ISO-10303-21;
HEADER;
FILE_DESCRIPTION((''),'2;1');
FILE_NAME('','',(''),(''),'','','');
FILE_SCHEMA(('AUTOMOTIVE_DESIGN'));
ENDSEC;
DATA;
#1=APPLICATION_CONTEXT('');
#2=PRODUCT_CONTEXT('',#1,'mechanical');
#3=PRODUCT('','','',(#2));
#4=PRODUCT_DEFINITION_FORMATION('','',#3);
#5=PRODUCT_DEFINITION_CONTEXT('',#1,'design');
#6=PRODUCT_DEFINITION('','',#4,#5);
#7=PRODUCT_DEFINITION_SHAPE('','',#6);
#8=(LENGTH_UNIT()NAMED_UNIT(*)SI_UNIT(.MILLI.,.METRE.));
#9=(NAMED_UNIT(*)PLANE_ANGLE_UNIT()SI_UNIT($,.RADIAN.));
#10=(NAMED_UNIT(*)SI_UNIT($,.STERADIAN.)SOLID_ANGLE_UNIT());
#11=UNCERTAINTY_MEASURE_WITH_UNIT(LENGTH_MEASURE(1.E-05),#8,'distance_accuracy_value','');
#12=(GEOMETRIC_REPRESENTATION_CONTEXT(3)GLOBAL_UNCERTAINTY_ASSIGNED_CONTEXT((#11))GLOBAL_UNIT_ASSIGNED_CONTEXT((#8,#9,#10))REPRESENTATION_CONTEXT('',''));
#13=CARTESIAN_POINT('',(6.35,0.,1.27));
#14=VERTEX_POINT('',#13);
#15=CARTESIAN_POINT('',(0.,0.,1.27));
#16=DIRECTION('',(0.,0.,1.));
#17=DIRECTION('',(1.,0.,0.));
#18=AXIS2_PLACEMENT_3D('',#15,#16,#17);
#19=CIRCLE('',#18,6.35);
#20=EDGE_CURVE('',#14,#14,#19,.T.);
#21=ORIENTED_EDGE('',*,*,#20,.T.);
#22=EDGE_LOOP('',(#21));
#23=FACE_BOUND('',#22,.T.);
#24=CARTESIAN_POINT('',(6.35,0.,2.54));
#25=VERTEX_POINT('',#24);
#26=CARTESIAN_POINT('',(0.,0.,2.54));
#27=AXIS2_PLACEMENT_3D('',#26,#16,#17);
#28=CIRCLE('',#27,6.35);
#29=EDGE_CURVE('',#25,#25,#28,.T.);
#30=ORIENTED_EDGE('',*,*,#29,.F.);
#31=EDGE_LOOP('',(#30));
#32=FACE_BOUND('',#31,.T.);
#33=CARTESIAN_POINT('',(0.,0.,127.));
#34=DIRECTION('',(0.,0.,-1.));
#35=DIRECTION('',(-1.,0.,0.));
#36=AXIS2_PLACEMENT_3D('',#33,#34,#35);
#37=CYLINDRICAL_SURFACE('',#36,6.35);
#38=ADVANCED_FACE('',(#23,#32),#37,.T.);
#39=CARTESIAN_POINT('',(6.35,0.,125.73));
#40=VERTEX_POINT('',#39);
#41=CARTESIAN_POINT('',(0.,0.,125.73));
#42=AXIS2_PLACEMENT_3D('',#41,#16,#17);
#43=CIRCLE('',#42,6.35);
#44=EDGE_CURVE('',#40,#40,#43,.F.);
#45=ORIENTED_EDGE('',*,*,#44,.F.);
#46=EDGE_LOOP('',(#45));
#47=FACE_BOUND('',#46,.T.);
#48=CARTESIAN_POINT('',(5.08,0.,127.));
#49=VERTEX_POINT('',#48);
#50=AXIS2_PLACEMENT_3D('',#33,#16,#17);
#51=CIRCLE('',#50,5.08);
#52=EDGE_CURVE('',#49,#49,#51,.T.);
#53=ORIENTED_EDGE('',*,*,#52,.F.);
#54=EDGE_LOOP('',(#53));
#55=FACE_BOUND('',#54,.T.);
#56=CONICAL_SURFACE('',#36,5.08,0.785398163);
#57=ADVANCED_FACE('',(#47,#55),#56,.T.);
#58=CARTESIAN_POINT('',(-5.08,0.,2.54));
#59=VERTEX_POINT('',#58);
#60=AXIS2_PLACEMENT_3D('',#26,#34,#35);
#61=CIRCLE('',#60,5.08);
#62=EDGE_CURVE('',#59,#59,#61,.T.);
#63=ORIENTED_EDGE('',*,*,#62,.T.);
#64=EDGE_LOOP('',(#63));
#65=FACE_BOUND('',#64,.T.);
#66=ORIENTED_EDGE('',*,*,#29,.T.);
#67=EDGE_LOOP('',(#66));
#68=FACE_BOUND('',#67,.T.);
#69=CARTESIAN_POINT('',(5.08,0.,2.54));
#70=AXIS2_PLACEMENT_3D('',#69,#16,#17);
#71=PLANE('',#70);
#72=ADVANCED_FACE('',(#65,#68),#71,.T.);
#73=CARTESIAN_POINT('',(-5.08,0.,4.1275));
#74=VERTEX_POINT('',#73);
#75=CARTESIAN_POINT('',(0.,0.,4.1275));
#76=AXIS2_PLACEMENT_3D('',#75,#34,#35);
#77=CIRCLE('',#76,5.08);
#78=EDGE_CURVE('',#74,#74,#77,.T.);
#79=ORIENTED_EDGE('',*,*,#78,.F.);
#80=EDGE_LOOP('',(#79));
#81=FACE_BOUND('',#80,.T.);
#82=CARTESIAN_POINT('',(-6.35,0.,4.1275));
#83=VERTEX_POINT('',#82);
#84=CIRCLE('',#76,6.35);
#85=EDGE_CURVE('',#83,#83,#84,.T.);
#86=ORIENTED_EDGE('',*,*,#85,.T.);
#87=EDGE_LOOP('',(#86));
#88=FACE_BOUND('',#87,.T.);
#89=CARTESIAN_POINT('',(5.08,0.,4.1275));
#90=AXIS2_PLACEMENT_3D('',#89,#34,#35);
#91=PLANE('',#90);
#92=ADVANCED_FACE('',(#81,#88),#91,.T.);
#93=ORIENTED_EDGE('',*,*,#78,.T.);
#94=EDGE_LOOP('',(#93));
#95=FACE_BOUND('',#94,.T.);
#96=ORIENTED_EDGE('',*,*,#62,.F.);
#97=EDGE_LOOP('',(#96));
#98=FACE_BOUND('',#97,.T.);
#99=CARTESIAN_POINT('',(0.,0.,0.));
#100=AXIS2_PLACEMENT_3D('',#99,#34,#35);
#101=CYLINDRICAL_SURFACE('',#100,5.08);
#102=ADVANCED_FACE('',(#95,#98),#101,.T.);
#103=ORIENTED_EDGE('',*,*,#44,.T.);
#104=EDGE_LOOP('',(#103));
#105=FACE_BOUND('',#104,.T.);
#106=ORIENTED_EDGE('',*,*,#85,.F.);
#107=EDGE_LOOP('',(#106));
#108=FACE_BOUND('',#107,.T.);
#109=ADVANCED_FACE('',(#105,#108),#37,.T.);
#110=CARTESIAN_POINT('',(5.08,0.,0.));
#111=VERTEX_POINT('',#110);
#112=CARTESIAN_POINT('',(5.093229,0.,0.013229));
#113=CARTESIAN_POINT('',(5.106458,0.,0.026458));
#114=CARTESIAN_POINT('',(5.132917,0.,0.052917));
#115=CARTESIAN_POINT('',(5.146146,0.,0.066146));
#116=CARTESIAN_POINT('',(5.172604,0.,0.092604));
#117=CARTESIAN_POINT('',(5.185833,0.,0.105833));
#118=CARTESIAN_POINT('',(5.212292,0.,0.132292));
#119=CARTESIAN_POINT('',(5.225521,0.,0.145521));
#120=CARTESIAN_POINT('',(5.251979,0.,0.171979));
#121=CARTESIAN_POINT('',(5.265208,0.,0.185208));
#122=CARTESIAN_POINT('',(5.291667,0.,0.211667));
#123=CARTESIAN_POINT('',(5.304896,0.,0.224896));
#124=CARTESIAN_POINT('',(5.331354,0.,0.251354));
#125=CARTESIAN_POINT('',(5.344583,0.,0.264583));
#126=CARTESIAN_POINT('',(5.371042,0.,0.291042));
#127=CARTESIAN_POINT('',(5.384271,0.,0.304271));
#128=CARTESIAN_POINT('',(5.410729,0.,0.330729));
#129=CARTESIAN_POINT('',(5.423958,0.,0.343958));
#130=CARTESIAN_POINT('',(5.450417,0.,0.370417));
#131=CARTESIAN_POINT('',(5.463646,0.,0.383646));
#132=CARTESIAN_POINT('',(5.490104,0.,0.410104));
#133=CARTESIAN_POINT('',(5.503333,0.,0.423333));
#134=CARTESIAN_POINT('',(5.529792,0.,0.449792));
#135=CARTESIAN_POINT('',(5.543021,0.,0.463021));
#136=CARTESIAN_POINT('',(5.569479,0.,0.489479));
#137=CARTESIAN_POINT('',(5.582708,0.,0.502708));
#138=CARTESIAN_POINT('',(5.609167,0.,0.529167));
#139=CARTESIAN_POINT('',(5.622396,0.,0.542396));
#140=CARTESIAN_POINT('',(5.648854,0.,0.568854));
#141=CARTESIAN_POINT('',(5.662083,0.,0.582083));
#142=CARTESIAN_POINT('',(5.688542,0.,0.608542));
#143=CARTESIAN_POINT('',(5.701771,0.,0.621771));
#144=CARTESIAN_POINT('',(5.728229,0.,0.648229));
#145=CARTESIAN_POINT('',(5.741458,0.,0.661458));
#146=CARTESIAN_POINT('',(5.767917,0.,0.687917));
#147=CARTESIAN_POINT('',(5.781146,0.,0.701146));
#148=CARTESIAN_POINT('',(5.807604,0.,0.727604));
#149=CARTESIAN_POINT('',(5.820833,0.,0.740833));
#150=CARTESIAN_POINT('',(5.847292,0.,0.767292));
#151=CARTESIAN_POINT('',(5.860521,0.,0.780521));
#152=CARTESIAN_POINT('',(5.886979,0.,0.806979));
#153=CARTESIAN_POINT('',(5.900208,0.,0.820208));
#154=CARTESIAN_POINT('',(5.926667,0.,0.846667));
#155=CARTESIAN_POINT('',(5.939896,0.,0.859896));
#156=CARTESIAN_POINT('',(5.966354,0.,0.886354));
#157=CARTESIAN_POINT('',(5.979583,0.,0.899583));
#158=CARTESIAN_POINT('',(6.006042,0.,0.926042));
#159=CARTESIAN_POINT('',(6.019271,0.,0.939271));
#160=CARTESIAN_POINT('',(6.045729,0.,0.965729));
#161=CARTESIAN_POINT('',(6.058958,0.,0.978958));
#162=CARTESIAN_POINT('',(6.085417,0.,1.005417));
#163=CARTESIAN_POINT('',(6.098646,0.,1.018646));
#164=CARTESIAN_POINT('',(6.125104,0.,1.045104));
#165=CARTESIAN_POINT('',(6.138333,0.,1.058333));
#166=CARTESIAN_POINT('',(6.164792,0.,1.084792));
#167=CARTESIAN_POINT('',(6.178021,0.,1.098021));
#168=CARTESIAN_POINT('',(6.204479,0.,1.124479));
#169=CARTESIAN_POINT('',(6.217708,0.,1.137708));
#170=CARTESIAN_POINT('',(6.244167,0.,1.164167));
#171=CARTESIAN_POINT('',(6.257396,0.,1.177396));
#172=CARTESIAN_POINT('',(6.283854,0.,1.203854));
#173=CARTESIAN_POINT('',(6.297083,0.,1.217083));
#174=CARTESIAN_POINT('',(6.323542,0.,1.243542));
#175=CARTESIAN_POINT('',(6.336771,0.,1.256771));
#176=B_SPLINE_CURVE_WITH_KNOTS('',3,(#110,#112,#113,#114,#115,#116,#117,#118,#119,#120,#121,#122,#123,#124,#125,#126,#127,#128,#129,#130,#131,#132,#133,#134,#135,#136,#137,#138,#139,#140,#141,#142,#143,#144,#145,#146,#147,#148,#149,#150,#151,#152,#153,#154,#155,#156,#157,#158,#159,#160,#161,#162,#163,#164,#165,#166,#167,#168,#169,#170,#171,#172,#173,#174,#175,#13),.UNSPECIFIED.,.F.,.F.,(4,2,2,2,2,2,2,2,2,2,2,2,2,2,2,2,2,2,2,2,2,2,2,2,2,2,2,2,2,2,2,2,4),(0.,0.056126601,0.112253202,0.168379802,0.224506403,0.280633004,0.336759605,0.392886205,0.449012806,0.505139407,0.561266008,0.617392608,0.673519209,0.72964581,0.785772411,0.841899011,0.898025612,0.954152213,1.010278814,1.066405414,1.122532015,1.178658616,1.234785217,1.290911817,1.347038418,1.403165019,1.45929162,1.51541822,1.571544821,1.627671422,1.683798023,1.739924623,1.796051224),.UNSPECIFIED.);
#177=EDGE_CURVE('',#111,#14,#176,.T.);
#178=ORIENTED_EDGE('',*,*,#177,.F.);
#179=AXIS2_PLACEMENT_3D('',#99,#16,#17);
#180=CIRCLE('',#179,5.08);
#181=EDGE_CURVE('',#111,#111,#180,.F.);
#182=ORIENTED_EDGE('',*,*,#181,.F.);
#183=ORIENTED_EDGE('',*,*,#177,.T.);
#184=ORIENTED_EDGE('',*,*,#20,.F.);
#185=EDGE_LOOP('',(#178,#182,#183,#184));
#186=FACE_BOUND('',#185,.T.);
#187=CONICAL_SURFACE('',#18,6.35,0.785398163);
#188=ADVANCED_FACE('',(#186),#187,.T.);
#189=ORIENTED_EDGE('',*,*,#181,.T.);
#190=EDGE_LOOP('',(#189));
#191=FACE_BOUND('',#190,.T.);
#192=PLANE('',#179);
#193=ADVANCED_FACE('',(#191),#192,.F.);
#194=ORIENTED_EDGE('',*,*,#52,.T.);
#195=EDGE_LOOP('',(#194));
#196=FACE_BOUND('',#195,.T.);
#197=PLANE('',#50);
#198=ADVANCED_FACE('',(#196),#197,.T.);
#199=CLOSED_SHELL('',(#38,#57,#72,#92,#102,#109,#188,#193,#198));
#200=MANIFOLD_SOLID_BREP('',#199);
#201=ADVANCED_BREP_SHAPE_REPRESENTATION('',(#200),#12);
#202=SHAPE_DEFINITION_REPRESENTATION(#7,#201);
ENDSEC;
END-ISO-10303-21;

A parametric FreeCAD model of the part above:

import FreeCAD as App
import Part
import Sketcher
from FreeCAD import Vector
Q = App.Units.Quantity


def edges_at(feature, points):
    """Names of the edges that pass closest to the given points."""
    edges = feature.Shape.Edges
    near = lambda p: min(range(len(edges)), key=lambda i: edges[i].distToShape(Part.Vertex(*p))[0])
    return sorted({f"Edge{near(p) + 1}" for p in points})


def add_polygon(sketch, points):
    """Adds a closed chain of lines whose ends are joined by coincident constraints."""
    first, n = sketch.GeometryCount, len(points)
    for a, b in zip(points, points[1:] + points[:1]):
        sketch.addGeometry(Part.LineSegment(App.Vector(*a, 0), App.Vector(*b, 0)), False)
    for i in range(n):
        sketch.addConstraint(Sketcher.Constraint("Coincident", first + i, 2, first + (i + 1) % n, 1))

doc = App.newDocument("Part")
body = doc.addObject("PartDesign::Body", "Body")

# Sketch on XY plane
sketch1 = body.newObject("Sketcher::SketchObject", "Sketch")
sketch1.AttachmentSupport = (doc.getObject("XY_Plane"), [""])
sketch1.MapMode = "FlatFace"
sketch1.addGeometry(Part.Circle(Vector(0, 0, 0), Vector(0, 0, 1), 6), False)
sketch1.addConstraint([
    Sketcher.Constraint("Coincident", 0, 3, -1, 1),
    Sketcher.Constraint("Diameter", 0, Q("0.5 in")),
])
pad1 = body.newObject("PartDesign::Pad", "Pad")
pad1.Profile = sketch1
pad1.Length = Q("5 in")
doc.recompute()

chamfer = body.newObject("PartDesign::Chamfer", "Chamfer")
chamfer.Base = (pad1, edges_at(pad1, [(-6.35, 0, 0), (-6.35, 0, 127)]))
chamfer.Size = Q("0.05 in")

# Sketch on XZ plane
sketch2 = body.newObject("Sketcher::SketchObject", "Sketch001")
sketch2.AttachmentSupport = (doc.getObject("XZ_Plane"), [""])
sketch2.MapMode = "FlatFace"
add_polygon(sketch2, [(5.1, 2.5), (5.1, 4.1), (11.9, 4.1), (11.9, 2.5)])  # lines 0-3
sketch2.addConstraint([
    Sketcher.Constraint("Vertical", 0),
    Sketcher.Constraint("Horizontal", 1),
    Sketcher.Constraint("Vertical", 2),
    Sketcher.Constraint("Horizontal", 3),
    Sketcher.Constraint("DistanceX", -1, 1, 0, 2, Q("0.2 in")),
    Sketcher.Constraint("DistanceY", -1, 1, 2, 2, Q("0.1 in")),
    Sketcher.Constraint("DistanceY", 0, 1, 0, 2, Q("0.0625 in")),
    Sketcher.Constraint("DistanceX", 1, 1, 1, 2, 6.845314),
])
groove = body.newObject("PartDesign::Groove", "Groove")
groove.Profile = sketch2
groove.ReferenceAxis = (sketch2, ["V_Axis"])
groove.Angle = 360

doc.recompute()
